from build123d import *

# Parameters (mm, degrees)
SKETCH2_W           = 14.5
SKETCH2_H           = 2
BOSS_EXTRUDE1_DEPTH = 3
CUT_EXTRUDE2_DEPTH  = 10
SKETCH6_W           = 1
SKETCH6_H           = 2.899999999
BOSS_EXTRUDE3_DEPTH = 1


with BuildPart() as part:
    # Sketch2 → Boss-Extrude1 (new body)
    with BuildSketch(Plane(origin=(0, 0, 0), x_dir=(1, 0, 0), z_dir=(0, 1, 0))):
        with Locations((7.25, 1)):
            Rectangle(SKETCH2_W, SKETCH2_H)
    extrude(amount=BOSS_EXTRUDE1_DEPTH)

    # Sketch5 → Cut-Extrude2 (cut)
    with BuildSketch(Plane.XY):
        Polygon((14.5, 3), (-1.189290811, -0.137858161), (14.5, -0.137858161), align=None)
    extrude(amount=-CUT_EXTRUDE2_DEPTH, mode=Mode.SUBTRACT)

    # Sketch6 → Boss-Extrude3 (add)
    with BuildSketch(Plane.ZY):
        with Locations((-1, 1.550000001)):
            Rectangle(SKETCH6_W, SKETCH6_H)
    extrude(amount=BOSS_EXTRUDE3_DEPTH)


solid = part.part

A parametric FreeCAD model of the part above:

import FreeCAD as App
import Part
import Sketcher
from FreeCAD import Vector

doc = App.newDocument("Part")
body = doc.addObject("PartDesign::Body", "Body")

sketch1 = body.newObject("Sketcher::SketchObject", "Sketch")
sketch1.AttachmentSupport = (doc.getObject("XZ_Plane"), [""])
sketch1.MapMode = "FlatFace"
sketch1.addGeometry(Part.LineSegment(Vector(0, -2, 0), Vector(0, 0, 0)), False)
sketch1.addGeometry(Part.LineSegment(Vector(0, 0, 0), Vector(14.5, 0, 0)), False)
sketch1.addGeometry(Part.LineSegment(Vector(14.5, 0, 0), Vector(14.5, -2, 0)), False)
sketch1.addGeometry(Part.LineSegment(Vector(14.5, -2, 0), Vector(0, -2, 0)), False)
sketch1.addConstraint(Sketcher.Constraint("Coincident", 0, 2, 1, 1))
sketch1.addConstraint(Sketcher.Constraint("Coincident", 1, 2, 2, 1))
sketch1.addConstraint(Sketcher.Constraint("Coincident", 2, 2, 3, 1))
sketch1.addConstraint(Sketcher.Constraint("Coincident", 3, 2, 0, 1))
sketch1.addConstraint(Sketcher.Constraint("Vertical", 0))
sketch1.addConstraint(Sketcher.Constraint("Horizontal", 1))
sketch1.addConstraint(Sketcher.Constraint("Vertical", 2))
sketch1.addConstraint(Sketcher.Constraint("Horizontal", 3))
sketch1.addConstraint(Sketcher.Constraint("Coincident", 0, 2, -1, 1))
sketch1.addConstraint(Sketcher.Constraint("DistanceY", 0, 1, 0, 2, 2.0))
sketch1.addConstraint(Sketcher.Constraint("DistanceX", 1, 1, 1, 2, 14.5))
pad1 = body.newObject("PartDesign::Pad", "Pad")
pad1.Profile = sketch1
pad1.Length = 3
pad1.Reversed = True

sketch2 = body.newObject("Sketcher::SketchObject", "Sketch001")
sketch2.AttachmentSupport = (doc.getObject("XY_Plane"), [""])
sketch2.MapMode = "FlatFace"
sketch2.addGeometry(Part.LineSegment(Vector(14.5, 3, 0), Vector(-1.189291, -0.137858, 0)), False)
sketch2.addGeometry(Part.LineSegment(Vector(-1.189291, -0.137858, 0), Vector(14.5, -0.137858, 0)), False)
sketch2.addGeometry(Part.LineSegment(Vector(14.5, -0.137858, 0), Vector(14.5, 3, 0)), False)
sketch2.addConstraint(Sketcher.Constraint("Coincident", 0, 2, 1, 1))
sketch2.addConstraint(Sketcher.Constraint("Coincident", 1, 2, 2, 1))
sketch2.addConstraint(Sketcher.Constraint("Coincident", 2, 2, 0, 1))
sketch2.addConstraint(Sketcher.Constraint("Horizontal", 1))
sketch2.addConstraint(Sketcher.Constraint("Vertical", 2))
sketch2.addConstraint(Sketcher.Constraint("Distance", 0, 16.0))
sketch2.addConstraint(Sketcher.Constraint("DistanceY", -1, 1, 2, 2, 3.0))
sketch2.addConstraint(Sketcher.Constraint("DistanceX", -1, 1, 1, 2, 14.5))
sketch2.addConstraint(Sketcher.Constraint("DistanceX", 1, 1, 1, 2, 15.689291))
pocket1 = body.newObject("PartDesign::Pocket", "Pocket")
pocket1.Profile = sketch2
pocket1.Length = 10

sketch3 = body.newObject("Sketcher::SketchObject", "Sketch002")
sketch3.AttachmentSupport = (doc.getObject("YZ_Plane"), [""])
sketch3.MapMode = "FlatFace"
sketch3.addGeometry(Part.LineSegment(Vector(3, -1.5, 0), Vector(0.1, -1.5, 0)), False)
sketch3.addGeometry(Part.LineSegment(Vector(0.1, -1.5, 0), Vector(0.1, -0.5, 0)), False)
sketch3.addGeometry(Part.LineSegment(Vector(0.1, -0.5, 0), Vector(3, -0.5, 0)), False)
sketch3.addGeometry(Part.LineSegment(Vector(3, -0.5, 0), Vector(3, -1.5, 0)), False)
sketch3.addConstraint(Sketcher.Constraint("Coincident", 0, 2, 1, 1))
sketch3.addConstraint(Sketcher.Constraint("Coincident", 1, 2, 2, 1))
sketch3.addConstraint(Sketcher.Constraint("Coincident", 2, 2, 3, 1))
sketch3.addConstraint(Sketcher.Constraint("Coincident", 3, 2, 0, 1))
sketch3.addConstraint(Sketcher.Constraint("Horizontal", 0))
sketch3.addConstraint(Sketcher.Constraint("Vertical", 1))
sketch3.addConstraint(Sketcher.Constraint("Horizontal", 2))
sketch3.addConstraint(Sketcher.Constraint("Vertical", 3))
sketch3.addConstraint(Sketcher.Constraint("DistanceY", 1, 1, 1, 2, 1.0))
sketch3.addConstraint(Sketcher.Constraint("DistanceX", 0, 2, 0, 1, 2.9))
sketch3.addConstraint(Sketcher.Constraint("DistanceX", -1, 1, 2, 2, 3.0))
sketch3.addConstraint(Sketcher.Constraint("DistanceY", 0, 2, -1, 1, 1.5))
pad2 = body.newObject("PartDesign::Pad", "Pad001")
pad2.Profile = sketch3
pad2.Length = 1
pad2.Reversed = True

doc.recompute()
